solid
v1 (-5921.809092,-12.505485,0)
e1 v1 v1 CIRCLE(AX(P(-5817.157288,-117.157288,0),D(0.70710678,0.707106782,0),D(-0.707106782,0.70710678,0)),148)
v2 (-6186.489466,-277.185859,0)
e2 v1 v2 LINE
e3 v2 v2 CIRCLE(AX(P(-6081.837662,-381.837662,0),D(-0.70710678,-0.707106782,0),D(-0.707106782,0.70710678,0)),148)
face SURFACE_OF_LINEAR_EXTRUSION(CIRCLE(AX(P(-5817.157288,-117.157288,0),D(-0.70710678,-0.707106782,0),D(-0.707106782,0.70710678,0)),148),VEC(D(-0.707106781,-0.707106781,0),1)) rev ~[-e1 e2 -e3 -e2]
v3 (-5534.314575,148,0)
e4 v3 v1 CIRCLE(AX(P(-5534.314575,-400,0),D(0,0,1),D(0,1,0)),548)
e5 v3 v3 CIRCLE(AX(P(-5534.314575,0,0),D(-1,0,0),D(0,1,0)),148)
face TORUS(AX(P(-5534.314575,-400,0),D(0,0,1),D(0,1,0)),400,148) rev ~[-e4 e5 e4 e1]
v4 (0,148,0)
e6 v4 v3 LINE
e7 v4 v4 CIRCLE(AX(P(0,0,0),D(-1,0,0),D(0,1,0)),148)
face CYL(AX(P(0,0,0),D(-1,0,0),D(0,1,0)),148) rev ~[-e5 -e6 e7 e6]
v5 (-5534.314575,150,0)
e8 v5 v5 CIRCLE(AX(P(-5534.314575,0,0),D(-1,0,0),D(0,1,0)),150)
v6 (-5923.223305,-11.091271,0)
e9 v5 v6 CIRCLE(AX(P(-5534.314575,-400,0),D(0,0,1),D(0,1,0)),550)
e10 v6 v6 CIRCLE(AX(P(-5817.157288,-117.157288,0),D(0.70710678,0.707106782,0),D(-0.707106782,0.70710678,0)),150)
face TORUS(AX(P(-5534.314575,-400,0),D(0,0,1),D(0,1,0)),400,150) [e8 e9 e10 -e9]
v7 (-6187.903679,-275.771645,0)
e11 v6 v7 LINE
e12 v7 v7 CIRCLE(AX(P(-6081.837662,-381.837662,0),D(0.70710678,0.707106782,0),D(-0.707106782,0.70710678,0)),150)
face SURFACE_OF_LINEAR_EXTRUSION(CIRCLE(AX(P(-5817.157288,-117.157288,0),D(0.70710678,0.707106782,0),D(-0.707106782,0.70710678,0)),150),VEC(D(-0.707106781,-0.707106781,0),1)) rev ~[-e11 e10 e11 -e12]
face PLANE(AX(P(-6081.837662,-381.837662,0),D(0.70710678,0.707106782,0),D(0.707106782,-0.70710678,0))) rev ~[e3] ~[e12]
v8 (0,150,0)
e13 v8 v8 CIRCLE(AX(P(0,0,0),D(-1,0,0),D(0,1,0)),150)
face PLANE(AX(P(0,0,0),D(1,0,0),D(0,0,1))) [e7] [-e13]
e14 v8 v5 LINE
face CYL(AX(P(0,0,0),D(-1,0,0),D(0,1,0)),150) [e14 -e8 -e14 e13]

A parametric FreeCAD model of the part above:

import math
import FreeCAD as App
import Part
import Sketcher
Q = App.Units.Quantity

doc = App.newDocument("Part")
body = doc.addObject("PartDesign::Body", "Body")

# Sketch on YZ plane
sketch1 = doc.addObject("Sketcher::SketchObject", "Sketch")
body.addObject(sketch1)
sketch1.AttachmentSupport = (doc.YZ_Plane, [""])
sketch1.MapMode = "FlatFace"
sketch1.addGeometry([
    Part.Circle(App.Vector(0, 0, 0), App.Vector(0, 0, 1), 150),
    Part.Circle(App.Vector(0, 0, 0), App.Vector(0, 0, 1), 148),
], False)
sketch1.addConstraint([
    Sketcher.Constraint("Coincident", 0, 3, -1, 1),
    Sketcher.Constraint("Coincident", 1, 3, -1, 1),
    Sketcher.Constraint("Diameter", 0, Q("300 mm")),
    Sketcher.Constraint("Diameter", 1, Q("296 mm")),
])

# Sketch on XY plane
sketch2 = doc.addObject("Sketcher::SketchObject", "Sketch001")
body.addObject(sketch2)
sketch2.AttachmentSupport = (doc.XY_Plane, [""])
sketch2.MapMode = "FlatFace"
sketch2.addGeometry([
    Part.LineSegment(App.Vector(0, 0, 0), App.Vector(-5534, 0, 0)),
    Part.ArcOfCircle(Part.Circle(App.Vector(-5534, -400, 0), App.Vector(0, 0, 1), 400), math.radians(90), math.radians(135)),
    Part.LineSegment(App.Vector(-5817, -117, 0), App.Vector(-6082, -382, 0)),
], False)
sketch2.addConstraint([
    Sketcher.Constraint("Tangent", 0, 2, 1, 1),
    Sketcher.Constraint("Tangent", 1, 2, 2, 1),
    Sketcher.Constraint("Horizontal", 0),
    Sketcher.Constraint("Coincident", 0, 1, -1, 1),
    Sketcher.Constraint("Radius", 1, Q("400 mm")),
    Sketcher.Constraint("Angle", 2, Q("-135 deg")),
    Sketcher.Constraint("DistanceX", 0, 2, 0, 1, Q("5534.314575 mm")),
    Sketcher.Constraint("DistanceX", 2, 2, -1, 1, Q("6081.837662 mm")),
])
doc.recompute()

additivepipe = doc.addObject("PartDesign::AdditivePipe", "AdditivePipe")
body.addObject(additivepipe)
additivepipe.Profile = sketch1
additivepipe.Spine = (sketch2, ["Edge1", "Edge2", "Edge3"])

doc.recompute()
